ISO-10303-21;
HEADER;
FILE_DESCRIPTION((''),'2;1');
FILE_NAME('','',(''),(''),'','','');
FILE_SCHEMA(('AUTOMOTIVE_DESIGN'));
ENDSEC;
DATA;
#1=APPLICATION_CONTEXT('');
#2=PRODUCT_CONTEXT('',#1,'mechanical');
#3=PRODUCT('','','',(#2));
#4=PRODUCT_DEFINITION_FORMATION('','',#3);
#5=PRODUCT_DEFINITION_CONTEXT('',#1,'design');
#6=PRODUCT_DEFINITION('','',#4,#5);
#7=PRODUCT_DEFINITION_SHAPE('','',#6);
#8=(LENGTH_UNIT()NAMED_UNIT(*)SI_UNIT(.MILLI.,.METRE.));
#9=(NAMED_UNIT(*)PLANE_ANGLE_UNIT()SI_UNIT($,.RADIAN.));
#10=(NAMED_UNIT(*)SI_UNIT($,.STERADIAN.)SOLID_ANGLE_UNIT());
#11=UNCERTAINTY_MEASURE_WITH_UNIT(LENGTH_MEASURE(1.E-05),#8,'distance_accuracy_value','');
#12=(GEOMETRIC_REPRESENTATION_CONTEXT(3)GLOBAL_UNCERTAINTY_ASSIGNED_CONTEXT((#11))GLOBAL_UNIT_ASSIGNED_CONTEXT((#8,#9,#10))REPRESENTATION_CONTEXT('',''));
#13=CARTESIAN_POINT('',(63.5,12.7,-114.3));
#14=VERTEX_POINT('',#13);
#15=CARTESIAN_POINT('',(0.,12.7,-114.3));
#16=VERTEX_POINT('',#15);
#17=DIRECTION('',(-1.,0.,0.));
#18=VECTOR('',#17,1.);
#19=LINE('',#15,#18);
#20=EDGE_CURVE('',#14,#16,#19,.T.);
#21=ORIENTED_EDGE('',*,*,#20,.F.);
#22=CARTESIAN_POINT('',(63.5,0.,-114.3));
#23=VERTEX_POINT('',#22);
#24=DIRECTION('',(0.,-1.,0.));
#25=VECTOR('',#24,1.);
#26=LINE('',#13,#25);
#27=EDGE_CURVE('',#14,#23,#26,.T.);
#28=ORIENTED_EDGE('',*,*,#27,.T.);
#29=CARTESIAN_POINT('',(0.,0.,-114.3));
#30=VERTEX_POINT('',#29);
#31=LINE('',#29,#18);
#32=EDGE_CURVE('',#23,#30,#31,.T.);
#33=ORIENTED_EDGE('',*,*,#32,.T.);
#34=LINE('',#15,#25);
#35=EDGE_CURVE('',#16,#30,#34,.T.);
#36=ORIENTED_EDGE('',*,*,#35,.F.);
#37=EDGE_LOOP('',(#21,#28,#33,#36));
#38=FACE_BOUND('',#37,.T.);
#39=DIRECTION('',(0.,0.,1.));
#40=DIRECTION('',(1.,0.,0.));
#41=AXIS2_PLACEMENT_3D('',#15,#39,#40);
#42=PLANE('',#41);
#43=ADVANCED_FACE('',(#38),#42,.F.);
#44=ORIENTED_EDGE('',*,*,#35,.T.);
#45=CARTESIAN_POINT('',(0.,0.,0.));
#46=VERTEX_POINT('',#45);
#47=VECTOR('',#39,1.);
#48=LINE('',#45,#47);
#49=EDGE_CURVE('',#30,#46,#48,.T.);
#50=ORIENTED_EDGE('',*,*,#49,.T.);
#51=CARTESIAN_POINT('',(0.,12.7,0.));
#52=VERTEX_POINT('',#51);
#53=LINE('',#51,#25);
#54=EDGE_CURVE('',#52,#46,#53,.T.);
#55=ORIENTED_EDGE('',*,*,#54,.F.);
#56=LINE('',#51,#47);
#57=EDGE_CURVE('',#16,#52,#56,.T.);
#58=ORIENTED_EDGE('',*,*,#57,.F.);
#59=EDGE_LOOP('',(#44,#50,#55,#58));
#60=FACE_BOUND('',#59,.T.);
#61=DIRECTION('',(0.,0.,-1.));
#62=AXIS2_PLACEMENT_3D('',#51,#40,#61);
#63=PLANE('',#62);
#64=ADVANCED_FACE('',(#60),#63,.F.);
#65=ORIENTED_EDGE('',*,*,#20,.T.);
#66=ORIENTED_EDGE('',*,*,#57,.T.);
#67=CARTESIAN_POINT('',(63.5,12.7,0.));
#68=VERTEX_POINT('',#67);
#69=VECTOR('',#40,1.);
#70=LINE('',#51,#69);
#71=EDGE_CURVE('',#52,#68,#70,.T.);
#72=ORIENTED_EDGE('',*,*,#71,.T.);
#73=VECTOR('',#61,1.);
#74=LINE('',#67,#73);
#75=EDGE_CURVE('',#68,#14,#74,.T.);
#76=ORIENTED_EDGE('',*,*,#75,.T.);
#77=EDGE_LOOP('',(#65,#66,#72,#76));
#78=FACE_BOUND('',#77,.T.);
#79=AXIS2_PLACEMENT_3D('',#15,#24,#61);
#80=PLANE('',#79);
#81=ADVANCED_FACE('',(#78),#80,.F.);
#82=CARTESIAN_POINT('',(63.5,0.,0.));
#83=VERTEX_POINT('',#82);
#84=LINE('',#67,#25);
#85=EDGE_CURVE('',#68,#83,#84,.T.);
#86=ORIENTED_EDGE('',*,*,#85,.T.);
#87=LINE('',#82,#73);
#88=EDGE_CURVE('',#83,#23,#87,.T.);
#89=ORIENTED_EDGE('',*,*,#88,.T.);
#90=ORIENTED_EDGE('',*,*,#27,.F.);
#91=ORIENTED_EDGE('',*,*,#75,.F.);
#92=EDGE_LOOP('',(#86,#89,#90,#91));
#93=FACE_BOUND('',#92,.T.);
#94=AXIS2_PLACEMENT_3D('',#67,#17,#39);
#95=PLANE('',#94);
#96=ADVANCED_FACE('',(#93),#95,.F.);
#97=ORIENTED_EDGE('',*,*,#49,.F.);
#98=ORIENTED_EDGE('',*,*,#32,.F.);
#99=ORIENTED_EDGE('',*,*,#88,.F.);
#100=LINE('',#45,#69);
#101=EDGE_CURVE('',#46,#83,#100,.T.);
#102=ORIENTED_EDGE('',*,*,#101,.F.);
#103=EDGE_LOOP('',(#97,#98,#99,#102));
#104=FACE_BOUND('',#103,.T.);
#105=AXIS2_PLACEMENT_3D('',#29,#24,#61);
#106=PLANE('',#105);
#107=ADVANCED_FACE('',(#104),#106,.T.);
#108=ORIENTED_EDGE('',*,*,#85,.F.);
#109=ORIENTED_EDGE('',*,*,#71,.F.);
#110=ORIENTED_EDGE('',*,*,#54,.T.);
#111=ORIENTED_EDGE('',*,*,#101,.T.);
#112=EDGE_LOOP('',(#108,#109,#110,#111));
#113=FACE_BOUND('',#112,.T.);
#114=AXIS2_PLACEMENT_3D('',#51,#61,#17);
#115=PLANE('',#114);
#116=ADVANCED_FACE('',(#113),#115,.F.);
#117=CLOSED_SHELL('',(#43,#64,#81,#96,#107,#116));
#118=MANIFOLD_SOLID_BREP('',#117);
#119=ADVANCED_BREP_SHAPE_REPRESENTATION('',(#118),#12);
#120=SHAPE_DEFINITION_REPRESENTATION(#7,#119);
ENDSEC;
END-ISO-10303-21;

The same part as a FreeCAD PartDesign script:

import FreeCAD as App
import Part
import Sketcher
from FreeCAD import Vector
Q = App.Units.Quantity


def add_polygon(sketch, points):
    """Adds a closed chain of lines whose ends are joined by coincident constraints."""
    first, n = sketch.GeometryCount, len(points)
    for a, b in zip(points, points[1:] + points[:1]):
        sketch.addGeometry(Part.LineSegment(App.Vector(*a, 0), App.Vector(*b, 0)), False)
    for i in range(n):
        sketch.addConstraint(Sketcher.Constraint("Coincident", first + i, 2, first + (i + 1) % n, 1))

doc = App.newDocument("Part")
params = doc.addObject("Spreadsheet::Sheet", "Params")
for row, (alias, value) in enumerate([
    ("sketch1_width", "2.5 in"),
    ("sketch1_height", "4.5 in"),
    ("pad1_length", "0.5 in"),
], start=1):
    params.set(f"A{row}", alias)
    params.set(f"B{row}", "=" + value)
    params.setAlias(f"B{row}", alias)

body = doc.addObject("PartDesign::Body", "Body")

# Sketch on XZ plane
sketch1 = body.newObject("Sketcher::SketchObject", "Sketch")
sketch1.AttachmentSupport = (doc.getObject("XZ_Plane"), [""])
sketch1.MapMode = "FlatFace"
add_polygon(sketch1, [(0, -114), (0, 0), (64, 0), (64, -114)])  # lines 0-3
sketch1.addConstraint([
    Sketcher.Constraint("Vertical", 0),
    Sketcher.Constraint("Horizontal", 1),
    Sketcher.Constraint("Vertical", 2),
    Sketcher.Constraint("Horizontal", 3),
    Sketcher.Constraint("Coincident", 0, 2, -1, 1),
    Sketcher.Constraint("DistanceX", 1, 1, 1, 2, Q("2.5 in")),
    Sketcher.Constraint("DistanceY", 0, 1, 0, 2, Q("4.5 in")),
])
sketch1.setExpression("Constraints[9]", "Params.sketch1_width")
sketch1.setExpression("Constraints[10]", "Params.sketch1_height")
pad1 = body.newObject("PartDesign::Pad", "Pad")
pad1.Profile = sketch1
pad1.setExpression("Length", "Params.pad1_length")
pad1.Reversed = True

doc.recompute()
